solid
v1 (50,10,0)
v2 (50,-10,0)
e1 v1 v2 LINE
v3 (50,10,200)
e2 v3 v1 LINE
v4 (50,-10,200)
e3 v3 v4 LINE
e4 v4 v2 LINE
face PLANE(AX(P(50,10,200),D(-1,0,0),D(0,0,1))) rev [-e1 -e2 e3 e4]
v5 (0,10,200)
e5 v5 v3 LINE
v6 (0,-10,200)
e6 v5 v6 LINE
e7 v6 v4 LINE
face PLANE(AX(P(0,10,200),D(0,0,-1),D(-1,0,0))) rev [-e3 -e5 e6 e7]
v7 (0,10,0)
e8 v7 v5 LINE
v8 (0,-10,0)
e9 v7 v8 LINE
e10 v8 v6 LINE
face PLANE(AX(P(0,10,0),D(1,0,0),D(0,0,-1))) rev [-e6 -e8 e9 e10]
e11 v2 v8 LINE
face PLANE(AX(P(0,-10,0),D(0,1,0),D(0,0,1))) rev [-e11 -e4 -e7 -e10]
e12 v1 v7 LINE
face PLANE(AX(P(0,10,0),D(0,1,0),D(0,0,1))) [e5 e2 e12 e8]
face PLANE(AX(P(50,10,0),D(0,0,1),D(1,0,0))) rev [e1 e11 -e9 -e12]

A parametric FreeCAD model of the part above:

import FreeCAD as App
import Part
import Sketcher
from FreeCAD import Vector


def add_polygon(sketch, points):
    """Adds a closed chain of lines whose ends are joined by coincident constraints."""
    first, n = sketch.GeometryCount, len(points)
    for a, b in zip(points, points[1:] + points[:1]):
        sketch.addGeometry(Part.LineSegment(App.Vector(*a, 0), App.Vector(*b, 0)), False)
    for i in range(n):
        sketch.addConstraint(Sketcher.Constraint("Coincident", first + i, 2, first + (i + 1) % n, 1))

doc = App.newDocument("Part")
body = doc.addObject("PartDesign::Body", "Body")

# Sketch on XZ plane
sketch1 = doc.addObject("Sketcher::SketchObject", "Sketch")
body.addObject(sketch1)
sketch1.AttachmentSupport = (doc.XZ_Plane, [""])
sketch1.MapMode = "FlatFace"
add_polygon(sketch1, [(0, 0), (0, 200), (50, 200), (50, 0)])  # lines 0-3
sketch1.addConstraint(Sketcher.Constraint("Vertical", 0))
sketch1.addConstraint(Sketcher.Constraint("Horizontal", 1))
sketch1.addConstraint(Sketcher.Constraint("Vertical", 2))
sketch1.addConstraint(Sketcher.Constraint("Horizontal", 3))
sketch1.addConstraint(Sketcher.Constraint("Coincident", 3, 2, -1, 1))
sketch1.addConstraint(Sketcher.Constraint("DistanceX", 1, 1, 1, 2, 50.0))
sketch1.addConstraint(Sketcher.Constraint("DistanceY", 0, 1, 0, 2, 200.0))
pad1 = doc.addObject("PartDesign::Pad", "Pad")
body.addObject(pad1)
pad1.Profile = sketch1
pad1.Length = 20
pad1.Midplane = True

doc.recompute()
